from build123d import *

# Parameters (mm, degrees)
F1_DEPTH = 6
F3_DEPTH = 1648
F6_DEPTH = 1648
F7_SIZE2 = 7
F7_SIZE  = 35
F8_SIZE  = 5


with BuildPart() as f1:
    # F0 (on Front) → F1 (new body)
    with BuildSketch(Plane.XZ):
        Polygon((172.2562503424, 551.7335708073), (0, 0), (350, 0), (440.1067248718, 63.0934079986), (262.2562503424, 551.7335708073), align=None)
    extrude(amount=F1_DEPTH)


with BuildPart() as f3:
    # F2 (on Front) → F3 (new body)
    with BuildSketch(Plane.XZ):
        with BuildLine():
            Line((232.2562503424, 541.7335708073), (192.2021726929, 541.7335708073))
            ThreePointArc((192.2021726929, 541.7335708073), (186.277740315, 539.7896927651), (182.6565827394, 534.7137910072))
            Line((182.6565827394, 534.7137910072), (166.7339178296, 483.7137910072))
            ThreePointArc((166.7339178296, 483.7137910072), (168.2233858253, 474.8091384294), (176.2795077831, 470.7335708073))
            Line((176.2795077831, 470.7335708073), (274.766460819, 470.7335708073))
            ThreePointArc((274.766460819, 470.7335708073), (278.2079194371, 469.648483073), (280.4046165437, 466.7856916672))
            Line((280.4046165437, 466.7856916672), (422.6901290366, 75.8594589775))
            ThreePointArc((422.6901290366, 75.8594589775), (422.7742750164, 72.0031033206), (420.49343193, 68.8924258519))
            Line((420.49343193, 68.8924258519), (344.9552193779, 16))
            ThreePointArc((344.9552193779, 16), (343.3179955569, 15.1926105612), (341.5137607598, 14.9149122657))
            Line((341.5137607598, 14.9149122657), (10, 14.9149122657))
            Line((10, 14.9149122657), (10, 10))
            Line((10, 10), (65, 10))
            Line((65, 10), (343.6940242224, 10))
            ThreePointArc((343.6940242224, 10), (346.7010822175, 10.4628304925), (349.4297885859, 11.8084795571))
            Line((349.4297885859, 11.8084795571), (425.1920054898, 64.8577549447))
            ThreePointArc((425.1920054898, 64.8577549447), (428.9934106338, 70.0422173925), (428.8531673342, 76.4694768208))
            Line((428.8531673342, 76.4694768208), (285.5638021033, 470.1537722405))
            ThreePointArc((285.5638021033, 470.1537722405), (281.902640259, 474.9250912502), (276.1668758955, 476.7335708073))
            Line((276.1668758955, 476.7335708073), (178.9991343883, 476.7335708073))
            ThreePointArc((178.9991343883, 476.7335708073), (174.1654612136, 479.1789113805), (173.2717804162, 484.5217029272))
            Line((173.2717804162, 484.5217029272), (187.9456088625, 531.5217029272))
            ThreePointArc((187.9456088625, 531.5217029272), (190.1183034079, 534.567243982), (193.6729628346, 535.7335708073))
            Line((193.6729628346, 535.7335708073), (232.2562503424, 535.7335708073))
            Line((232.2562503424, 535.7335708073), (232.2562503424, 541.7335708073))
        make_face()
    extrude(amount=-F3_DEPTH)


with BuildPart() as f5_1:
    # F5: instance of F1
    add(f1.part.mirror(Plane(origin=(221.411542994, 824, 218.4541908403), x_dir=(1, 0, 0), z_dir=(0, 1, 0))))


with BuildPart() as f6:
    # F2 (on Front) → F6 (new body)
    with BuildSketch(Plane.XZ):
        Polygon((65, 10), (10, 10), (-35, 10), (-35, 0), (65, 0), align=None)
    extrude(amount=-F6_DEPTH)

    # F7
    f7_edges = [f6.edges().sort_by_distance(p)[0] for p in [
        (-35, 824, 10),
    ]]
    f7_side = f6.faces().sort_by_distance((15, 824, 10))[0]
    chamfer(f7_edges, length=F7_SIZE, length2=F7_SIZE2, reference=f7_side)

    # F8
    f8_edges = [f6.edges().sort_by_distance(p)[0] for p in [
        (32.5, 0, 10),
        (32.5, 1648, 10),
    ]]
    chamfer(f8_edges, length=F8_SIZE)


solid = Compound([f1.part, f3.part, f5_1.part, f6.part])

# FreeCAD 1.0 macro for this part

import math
import FreeCAD as App
import Part
import Sketcher
Q = App.Units.Quantity


def edges_at(feature, points):
    """Names of the edges that pass closest to the given points."""
    edges = feature.Shape.Edges
    near = lambda p: min(range(len(edges)), key=lambda i: edges[i].distToShape(Part.Vertex(*p))[0])
    return sorted({f"Edge{near(p) + 1}" for p in points})

doc = App.newDocument("Part")
params = doc.addObject("Spreadsheet::Sheet", "Params")
for row, (alias, value) in enumerate([
    ("sketch1_width", "350 mm"),
    ("sketch1_width2", "90 mm"),
    ("sketch1_length", "110 mm"),
    ("sketch1_length2", "520 mm"),
    ("pad1_length", "6 mm"),
    ("sketch2_radius", "10 mm"),
    ("sketch2_radius2", "6 mm"),
    ("sketch2_height", "6 mm"),
    ("pad2_length", "1648 mm"),
    ("sketch3_width", "100 mm"),
    ("sketch3_height", "10 mm"),
    ("pad3_length", "1648 mm"),
    ("chamfer_size", "35 mm"),
    ("chamfer_size2", "7 mm"),
    ("chamfer2_size", "5 mm"),
], start=1):
    params.set(f"A{row}", alias)
    params.set(f"B{row}", "=" + value)
    params.setAlias(f"B{row}", alias)

body = doc.addObject("PartDesign::Body", "Body")

# Sketch on XZ plane
sketch1 = body.newObject("Sketcher::SketchObject", "Sketch")
sketch1.AttachmentSupport = (doc.getObject("XZ_Plane"), [""])
sketch1.MapMode = "FlatFace"
sketch1.addGeometry([
    Part.LineSegment(App.Vector(172, 552, 0), App.Vector(0, 0, 0)),  # 0
    Part.LineSegment(App.Vector(0, 0, 0), App.Vector(350, 0, 0)),  # 1
    Part.LineSegment(App.Vector(350, 0, 0), App.Vector(440, 63, 0)),  # 2
    Part.LineSegment(App.Vector(440, 63, 0), App.Vector(262, 552, 0)),  # 3
    Part.LineSegment(App.Vector(262, 552, 0), App.Vector(172, 552, 0)),  # 4
], False)
sketch1.addConstraint([
    Sketcher.Constraint("Coincident", 0, 2, 1, 1),
    Sketcher.Constraint("Coincident", 1, 2, 2, 1),
    Sketcher.Constraint("Coincident", 2, 2, 3, 1),
    Sketcher.Constraint("Coincident", 3, 2, 4, 1),
    Sketcher.Constraint("Coincident", 4, 2, 0, 1),
    Sketcher.Constraint("Horizontal", 1),
    Sketcher.Constraint("Horizontal", 4),
    Sketcher.Constraint("Coincident", 0, 2, -1, 1),
    Sketcher.Constraint("DistanceX", 1, 1, 1, 2, 350.0),
    Sketcher.Constraint("DistanceX", 4, 2, 4, 1, 90.0),
    Sketcher.Constraint("Angle", 2, Q("35 deg")),
    Sketcher.Constraint("Angle", 3, Q("110 deg")),
    Sketcher.Constraint("Distance", 2, 110.0),
    Sketcher.Constraint("Distance", 3, 520.0),
])
sketch1.setExpression("Constraints[8]", "Params.sketch1_width")
sketch1.setExpression("Constraints[9]", "Params.sketch1_width2")
sketch1.setExpression("Constraints[12]", "Params.sketch1_length")
sketch1.setExpression("Constraints[13]", "Params.sketch1_length2")
pad1 = body.newObject("PartDesign::Pad", "Pad")
pad1.Profile = sketch1
pad1.setExpression("Length", "Params.pad1_length")
body2 = doc.addObject("PartDesign::Body", "Body001")

# Sketch on XZ plane
sketch2 = body2.newObject("Sketcher::SketchObject", "Sketch001")
sketch2.AttachmentSupport = (doc.getObject("XZ_Plane001"), [""])
sketch2.MapMode = "FlatFace"
sketch2.addGeometry([
    Part.LineSegment(App.Vector(232.3, 541.7, 0), App.Vector(192.2, 541.7, 0)),  # 0
    Part.ArcOfCircle(Part.Circle(App.Vector(192.2, 531.7, 0), App.Vector(0, 0, 1), 10), math.radians(90), math.radians(163)),  # 1
    Part.LineSegment(App.Vector(182.7, 534.7, 0), App.Vector(166.7, 483.7, 0)),  # 2
    Part.ArcOfCircle(Part.Circle(App.Vector(176.3, 480.7, 0), App.Vector(0, 0, 1), 10), math.radians(163), math.radians(270)),  # 3
    Part.LineSegment(App.Vector(176.3, 470.7, 0), App.Vector(274.8, 470.7, 0)),  # 4
    Part.ArcOfCircle(Part.Circle(App.Vector(274.8, 464.7, 0), App.Vector(0, 0, 1), 6), math.radians(20), math.radians(90)),  # 5
    Part.LineSegment(App.Vector(280.4, 466.8, 0), App.Vector(422.7, 75.9, 0)),  # 6
    Part.ArcOfCircle(Part.Circle(App.Vector(417.1, 73.8, 0), App.Vector(0, 0, 1), 6), math.radians(-55), math.radians(20)),  # 7
    Part.LineSegment(App.Vector(420.5, 68.9, 0), App.Vector(345, 16, 0)),  # 8
    Part.ArcOfCircle(Part.Circle(App.Vector(341.5, 20.9, 0), App.Vector(0, 0, 1), 6), math.radians(-90), math.radians(-55)),  # 9
    Part.LineSegment(App.Vector(341.5, 14.9, 0), App.Vector(10, 14.9, 0)),  # 10
    Part.LineSegment(App.Vector(10, 14.9, 0), App.Vector(10, 10, 0)),  # 11
    Part.LineSegment(App.Vector(10, 10, 0), App.Vector(343.7, 10, 0)),  # 12
    Part.ArcOfCircle(Part.Circle(App.Vector(343.7, 20, 0), App.Vector(0, 0, 1), 10), math.radians(-90), math.radians(-55)),  # 13
    Part.LineSegment(App.Vector(349.4, 11.8, 0), App.Vector(425.2, 64.9, 0)),  # 14
    Part.ArcOfCircle(Part.Circle(App.Vector(419.5, 73, 0), App.Vector(0, 0, 1), 10), math.radians(-55), math.radians(20)),  # 15
    Part.LineSegment(App.Vector(428.9, 76.5, 0), App.Vector(285.6, 470.2, 0)),  # 16
    Part.ArcOfCircle(Part.Circle(App.Vector(276.2, 466.7, 0), App.Vector(0, 0, 1), 10), math.radians(20), math.radians(90)),  # 17
    Part.LineSegment(App.Vector(276.2, 476.7, 0), App.Vector(179, 476.7, 0)),  # 18
    Part.ArcOfCircle(Part.Circle(App.Vector(179, 482.7, 0), App.Vector(0, 0, 1), 6), math.radians(163), math.radians(270)),  # 19
    Part.LineSegment(App.Vector(173.3, 484.5, 0), App.Vector(187.9, 531.5, 0)),  # 20
    Part.ArcOfCircle(Part.Circle(App.Vector(193.7, 529.7, 0), App.Vector(0, 0, 1), 6), math.radians(90), math.radians(163)),  # 21
    Part.LineSegment(App.Vector(193.7, 535.7, 0), App.Vector(232.3, 535.7, 0)),  # 22
    Part.LineSegment(App.Vector(232.3, 535.7, 0), App.Vector(232.3, 541.7, 0)),  # 23
], False)
sketch2.addConstraint([
    Sketcher.Constraint("Tangent", 0, 2, 1, 1),
    Sketcher.Constraint("Tangent", 1, 2, 2, 1),
    Sketcher.Constraint("Tangent", 2, 2, 3, 1),
    Sketcher.Constraint("Tangent", 3, 2, 4, 1),
    Sketcher.Constraint("Tangent", 4, 2, 5, 2),
    Sketcher.Constraint("Tangent", 5, 1, 6, 1),
    Sketcher.Constraint("Tangent", 6, 2, 7, 2),
    Sketcher.Constraint("Tangent", 7, 1, 8, 1),
    Sketcher.Constraint("Tangent", 8, 2, 9, 2),
    Sketcher.Constraint("Tangent", 9, 1, 10, 1),
    Sketcher.Constraint("Coincident", 10, 2, 11, 1),
    Sketcher.Constraint("Coincident", 11, 2, 12, 1),
    Sketcher.Constraint("Tangent", 12, 2, 13, 1),
    Sketcher.Constraint("Tangent", 13, 2, 14, 1),
    Sketcher.Constraint("Tangent", 14, 2, 15, 1),
    Sketcher.Constraint("Tangent", 15, 2, 16, 1),
    Sketcher.Constraint("Tangent", 16, 2, 17, 1),
    Sketcher.Constraint("Tangent", 17, 2, 18, 1),
    Sketcher.Constraint("Tangent", 18, 2, 19, 2),
    Sketcher.Constraint("Tangent", 19, 1, 20, 1),
    Sketcher.Constraint("Tangent", 20, 2, 21, 2),
    Sketcher.Constraint("Tangent", 21, 1, 22, 1),
    Sketcher.Constraint("Coincident", 22, 2, 23, 1),
    Sketcher.Constraint("Coincident", 23, 2, 0, 1),
    Sketcher.Constraint("Horizontal", 0),
    Sketcher.Constraint("Horizontal", 4),
    Sketcher.Constraint("Horizontal", 10),
    Sketcher.Constraint("Vertical", 11),
    Sketcher.Constraint("Horizontal", 12),
    Sketcher.Constraint("Horizontal", 18),
    Sketcher.Constraint("Horizontal", 22),
    Sketcher.Constraint("Vertical", 23),
    Sketcher.Constraint("Equal", 1, 3),
    Sketcher.Constraint("Equal", 5, 7),
    Sketcher.Constraint("Equal", 7, 9),
    Sketcher.Constraint("Equal", 3, 13),
    Sketcher.Constraint("Equal", 13, 15),
    Sketcher.Constraint("Equal", 15, 17),
    Sketcher.Constraint("Equal", 9, 19),
    Sketcher.Constraint("Equal", 19, 21),
    Sketcher.Constraint("Parallel", 8, 14),
    Sketcher.Constraint("Parallel", 6, 16),
    Sketcher.Constraint("Parallel", 2, 20),
    Sketcher.Constraint("Radius", 1, 10.0),
    Sketcher.Constraint("Radius", 5, 6.0),
    Sketcher.Constraint("DistanceY", 23, 1, 23, 2, 6.0),
    Sketcher.Constraint("Angle", 6, Q("-70 deg")),
    Sketcher.Constraint("Angle", 8, Q("-145 deg")),
    Sketcher.Constraint("DistanceY", -1, 1, 13, 3, 20.0),
    Sketcher.Constraint("DistanceY", -1, 1, 8, 2, 16.0),
    Sketcher.Constraint("DistanceX", -1, 1, 10, 2, 10.0),
    Sketcher.Constraint("DistanceY", 3, 3, 1, 3, 51.0),
    Sketcher.Constraint("DistanceY", 5, 3, 17, 3, 2.0),
    Sketcher.Constraint("DistanceX", 10, 2, 10, 1, 331.513761),
    Sketcher.Constraint("DistanceX", 18, 2, 18, 1, 97.167742),
    Sketcher.Constraint("DistanceX", 1, 3, 7, 3, 224.849801),
    Sketcher.Constraint("DistanceX", 5, 3, 9, 3, 66.7473),
    Sketcher.Constraint("Distance", 8, 92.21513),
    Sketcher.Constraint("Distance", 14, 92.488589),
    Sketcher.Constraint("DistanceX", 0, 2, 0, 1, 40.054078),
    Sketcher.Constraint("DistanceX", 4, 1, 4, 2, 98.486953),
    Sketcher.Constraint("DistanceX", 12, 1, 12, 2, 333.694024),
])
sketch2.setExpression("Constraints[43]", "Params.sketch2_radius")
sketch2.setExpression("Constraints[44]", "Params.sketch2_radius2")
sketch2.setExpression("Constraints[45]", "Params.sketch2_height")
pad2 = body2.newObject("PartDesign::Pad", "Pad001")
pad2.Profile = sketch2
pad2.setExpression("Length", "Params.pad2_length")
pad2.Reversed = True
body3 = doc.addObject("PartDesign::Body", "Body002")
doc.recompute()

mirroring = doc.addObject("Part::Mirroring", "Mirroring")
mirroring.Source = body
mirroring.Base = App.Vector(221.411543, 824, 218.454191)
mirroring.Normal = App.Vector(0, 1, 0)
body3.BaseFeature = mirroring
doc.recompute()
body4 = doc.addObject("PartDesign::Body", "Body003")

# Sketch on XZ plane
sketch3 = body4.newObject("Sketcher::SketchObject", "Sketch002")
sketch3.AttachmentSupport = (doc.getObject("XZ_Plane003"), [""])
sketch3.MapMode = "FlatFace"
sketch3.addGeometry([
    Part.LineSegment(App.Vector(65, 10, 0), App.Vector(-35, 10, 0)),
    Part.LineSegment(App.Vector(-35, 10, 0), App.Vector(-35, 0, 0)),
    Part.LineSegment(App.Vector(-35, 0, 0), App.Vector(65, 0, 0)),
    Part.LineSegment(App.Vector(65, 0, 0), App.Vector(65, 10, 0)),
], False)
sketch3.addConstraint([
    Sketcher.Constraint("Coincident", 0, 2, 1, 1),
    Sketcher.Constraint("Coincident", 1, 2, 2, 1),
    Sketcher.Constraint("Coincident", 2, 2, 3, 1),
    Sketcher.Constraint("Coincident", 3, 2, 0, 1),
    Sketcher.Constraint("Horizontal", 0),
    Sketcher.Constraint("Vertical", 1),
    Sketcher.Constraint("Horizontal", 2),
    Sketcher.Constraint("Vertical", 3),
    Sketcher.Constraint("PointOnObject", 1, 2, -1),
    Sketcher.Constraint("DistanceX", 0, 2, 0, 1, 100.0),
    Sketcher.Constraint("DistanceY", 1, 2, 1, 1, 10.0),
    Sketcher.Constraint("DistanceX", 0, 2, -1, 1, 35.0),
])
sketch3.setExpression("Constraints[9]", "Params.sketch3_width")
sketch3.setExpression("Constraints[10]", "Params.sketch3_height")
pad3 = body4.newObject("PartDesign::Pad", "Pad002")
pad3.Profile = sketch3
pad3.setExpression("Length", "Params.pad3_length")
pad3.Reversed = True
doc.recompute()

chamfer = body4.newObject("PartDesign::Chamfer", "Chamfer")
chamfer.Base = (pad3, edges_at(pad3, [(-35, 824, 10)]))
chamfer.ChamferType = "Two distances"
chamfer.setExpression("Size", "Params.chamfer_size")
chamfer.setExpression("Size2", "Params.chamfer_size2")
doc.recompute()

chamfer2 = body4.newObject("PartDesign::Chamfer", "Chamfer001")
chamfer2.Base = (chamfer, edges_at(chamfer, [(32.5, 0, 10), (32.5, 1648, 10)]))
chamfer2.setExpression("Size", "Params.chamfer2_size")
mirroring.Visibility = False

doc.recompute()
